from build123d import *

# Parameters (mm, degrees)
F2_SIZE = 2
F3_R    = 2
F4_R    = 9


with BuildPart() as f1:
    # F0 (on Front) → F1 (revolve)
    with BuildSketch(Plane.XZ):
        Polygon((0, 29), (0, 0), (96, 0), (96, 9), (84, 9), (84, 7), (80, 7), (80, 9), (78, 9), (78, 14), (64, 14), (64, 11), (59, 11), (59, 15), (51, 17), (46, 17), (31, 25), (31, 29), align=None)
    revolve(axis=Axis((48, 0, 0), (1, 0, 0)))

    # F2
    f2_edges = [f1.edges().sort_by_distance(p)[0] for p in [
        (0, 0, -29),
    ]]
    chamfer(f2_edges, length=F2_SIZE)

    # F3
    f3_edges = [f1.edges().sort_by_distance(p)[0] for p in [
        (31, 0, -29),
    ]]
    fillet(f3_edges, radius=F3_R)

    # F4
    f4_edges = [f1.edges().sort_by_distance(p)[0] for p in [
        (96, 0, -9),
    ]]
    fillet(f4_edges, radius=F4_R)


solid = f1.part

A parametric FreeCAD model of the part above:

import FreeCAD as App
import Part
import Sketcher
from FreeCAD import Vector


def edges_at(feature, points):
    """Names of the edges that pass closest to the given points."""
    edges = feature.Shape.Edges
    near = lambda p: min(range(len(edges)), key=lambda i: edges[i].distToShape(Part.Vertex(*p))[0])
    return sorted({f"Edge{near(p) + 1}" for p in points})

doc = App.newDocument("Part")
body = doc.addObject("PartDesign::Body", "Body")

sketch1 = doc.addObject("Sketcher::SketchObject", "Sketch")
body.addObject(sketch1)
sketch1.AttachmentSupport = (doc.XZ_Plane, [""])
sketch1.MapMode = "FlatFace"
sketch1.addGeometry([
    Part.LineSegment(Vector(0, 29, 0), Vector(0, 0, 0)),
    Part.LineSegment(Vector(0, 0, 0), Vector(96, 0, 0)),
    Part.LineSegment(Vector(96, 0, 0), Vector(96, 9, 0)),
    Part.LineSegment(Vector(96, 9, 0), Vector(84, 9, 0)),
    Part.LineSegment(Vector(84, 9, 0), Vector(84, 7, 0)),
    Part.LineSegment(Vector(84, 7, 0), Vector(80, 7, 0)),
    Part.LineSegment(Vector(80, 7, 0), Vector(80, 9, 0)),
    Part.LineSegment(Vector(80, 9, 0), Vector(78, 9, 0)),
    Part.LineSegment(Vector(78, 9, 0), Vector(78, 14, 0)),
    Part.LineSegment(Vector(78, 14, 0), Vector(64, 14, 0)),
    Part.LineSegment(Vector(64, 14, 0), Vector(64, 11, 0)),
    Part.LineSegment(Vector(64, 11, 0), Vector(59, 11, 0)),
    Part.LineSegment(Vector(59, 11, 0), Vector(59, 15, 0)),
    Part.LineSegment(Vector(59, 15, 0), Vector(51, 17, 0)),
    Part.LineSegment(Vector(51, 17, 0), Vector(46, 17, 0)),
    Part.LineSegment(Vector(46, 17, 0), Vector(31, 25, 0)),
    Part.LineSegment(Vector(31, 25, 0), Vector(31, 29, 0)),
    Part.LineSegment(Vector(31, 29, 0), Vector(0, 29, 0)),
], False)
sketch1.addConstraint([
    Sketcher.Constraint("Coincident", 0, 2, 1, 1),
    Sketcher.Constraint("Coincident", 1, 2, 2, 1),
    Sketcher.Constraint("Coincident", 2, 2, 3, 1),
    Sketcher.Constraint("Coincident", 3, 2, 4, 1),
    Sketcher.Constraint("Coincident", 4, 2, 5, 1),
    Sketcher.Constraint("Coincident", 5, 2, 6, 1),
    Sketcher.Constraint("Coincident", 6, 2, 7, 1),
    Sketcher.Constraint("Coincident", 7, 2, 8, 1),
    Sketcher.Constraint("Coincident", 8, 2, 9, 1),
    Sketcher.Constraint("Coincident", 9, 2, 10, 1),
    Sketcher.Constraint("Coincident", 10, 2, 11, 1),
    Sketcher.Constraint("Coincident", 11, 2, 12, 1),
    Sketcher.Constraint("Coincident", 12, 2, 13, 1),
    Sketcher.Constraint("Coincident", 13, 2, 14, 1),
    Sketcher.Constraint("Coincident", 14, 2, 15, 1),
    Sketcher.Constraint("Coincident", 15, 2, 16, 1),
    Sketcher.Constraint("Coincident", 16, 2, 17, 1),
    Sketcher.Constraint("Coincident", 17, 2, 0, 1),
    Sketcher.Constraint("Vertical", 0),
    Sketcher.Constraint("Horizontal", 1),
    Sketcher.Constraint("Vertical", 2),
    Sketcher.Constraint("Horizontal", 3),
    Sketcher.Constraint("Vertical", 4),
    Sketcher.Constraint("Horizontal", 5),
    Sketcher.Constraint("Vertical", 6),
    Sketcher.Constraint("Horizontal", 7),
    Sketcher.Constraint("Vertical", 8),
    Sketcher.Constraint("Horizontal", 9),
    Sketcher.Constraint("Vertical", 10),
    Sketcher.Constraint("Horizontal", 11),
    Sketcher.Constraint("Vertical", 12),
    Sketcher.Constraint("Horizontal", 14),
    Sketcher.Constraint("Vertical", 16),
    Sketcher.Constraint("Horizontal", 17),
    Sketcher.Constraint("Coincident", 0, 2, -1, 1),
    Sketcher.Constraint("Horizontal", 3, 2, 6, 2),
    Sketcher.Constraint("Equal", 11, 14),
    Sketcher.Constraint("Equal", 7, 4),
    Sketcher.Constraint("Equal", 14, 8),
    Sketcher.Constraint("Equal", 5, 12),
    Sketcher.Constraint("Equal", 12, 16),
    Sketcher.Constraint("DistanceX", 1, 1, 1, 2, 96.0),
    Sketcher.Constraint("DistanceX", 3, 2, 3, 1, 12.0),
    Sketcher.Constraint("DistanceX", 5, 2, 5, 1, 4.0),
    Sketcher.Constraint("DistanceX", 7, 2, 7, 1, 2.0),
    Sketcher.Constraint("DistanceX", 9, 2, 9, 1, 14.0),
    Sketcher.Constraint("DistanceX", 11, 2, 11, 1, 5.0),
    Sketcher.Constraint("DistanceX", 17, 2, 17, 1, 31.0),
    Sketcher.Constraint("DistanceY", 0, 2, 0, 1, 29.0),
    Sketcher.Constraint("DistanceY", 2, 1, 2, 2, 9.0),
    Sketcher.Constraint("DistanceY", 10, 2, 10, 1, 3.0),
    Sketcher.Constraint("Distance", 15, 17.0),
    Sketcher.Constraint("DistanceX", -1, 1, 13, 2, 51.0),
])
revolution = doc.addObject("PartDesign::Revolution", "Revolution")
body.addObject(revolution)
revolution.Profile = sketch1
revolution.ReferenceAxis = (sketch1, ["H_Axis"])
revolution.Angle = 360
doc.recompute()

chamfer = doc.addObject("PartDesign::Chamfer", "Chamfer")
body.addObject(chamfer)
chamfer.Base = (revolution, edges_at(revolution, [(0, 0, -29)]))
chamfer.Size = 2
doc.recompute()

fillet = doc.addObject("PartDesign::Fillet", "Fillet")
body.addObject(fillet)
fillet.Base = (chamfer, edges_at(chamfer, [(31, 0, -29)]))
fillet.Radius = 2
doc.recompute()

fillet2 = doc.addObject("PartDesign::Fillet", "Fillet001")
body.addObject(fillet2)
fillet2.Base = (fillet, edges_at(fillet, [(96, 0, -9)]))
fillet2.Radius = 9

doc.recompute()
